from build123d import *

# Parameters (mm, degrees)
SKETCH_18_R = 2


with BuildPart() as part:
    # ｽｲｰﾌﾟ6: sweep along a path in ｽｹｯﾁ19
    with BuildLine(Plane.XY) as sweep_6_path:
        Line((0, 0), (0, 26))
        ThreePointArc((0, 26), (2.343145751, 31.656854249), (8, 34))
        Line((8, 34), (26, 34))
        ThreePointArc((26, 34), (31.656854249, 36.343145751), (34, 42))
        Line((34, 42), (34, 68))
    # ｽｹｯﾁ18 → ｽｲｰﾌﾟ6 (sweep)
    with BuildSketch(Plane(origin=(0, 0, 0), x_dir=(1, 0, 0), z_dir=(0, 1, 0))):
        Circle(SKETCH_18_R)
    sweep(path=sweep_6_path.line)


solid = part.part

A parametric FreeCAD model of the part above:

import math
import FreeCAD as App
import Part
import Sketcher

V = App.Vector

doc = App.newDocument("Part")
params = doc.addObject("Spreadsheet::Sheet", "Params")
for row, (alias, value) in enumerate([
    ("sketch1_diameter", "4 mm"),
    ("sketch2_radius", "8 mm"),
    ("sketch2_width", "18 mm"),
    ("sketch2_height", "26 mm"),
], start=1):
    params.set(f"A{row}", alias)
    params.set(f"B{row}", "=" + value)
    params.setAlias(f"B{row}", alias)

body = doc.addObject("PartDesign::Body", "Body")

# Sketch on XZ plane
sketch1 = body.newObject("Sketcher::SketchObject", "Sketch")
sketch1.AttachmentSupport = (doc.getObject("XZ_Plane"), [""])
sketch1.MapMode = "FlatFace"
sketch1.addGeometry(Part.Circle(V(0, 0, 0), V(0, 0, 1), 2), False)
sketch1.addConstraint(Sketcher.Constraint("Coincident", 0, 3, -1, 1))
sketch1.addConstraint(Sketcher.Constraint("Diameter", 0, 4.0))
sketch1.setExpression("Constraints[1]", "Params.sketch1_diameter")

# Sketch on XY plane
sketch2 = body.newObject("Sketcher::SketchObject", "Sketch001")
sketch2.AttachmentSupport = (doc.getObject("XY_Plane"), [""])
sketch2.MapMode = "FlatFace"
sketch2.addGeometry(Part.LineSegment(V(0, 0, 0), V(0, 26, 0)), False)
sketch2.addGeometry(Part.ArcOfCircle(Part.Circle(V(8, 26, 0), V(0, 0, 1), 8), math.radians(90), math.radians(180)), False)
sketch2.addGeometry(Part.LineSegment(V(8, 34, 0), V(26, 34, 0)), False)
sketch2.addGeometry(Part.ArcOfCircle(Part.Circle(V(26, 42, 0), V(0, 0, 1), 8), math.radians(-90), math.radians(0)), False)
sketch2.addGeometry(Part.LineSegment(V(34, 42, 0), V(34, 68, 0)), False)
sketch2.addConstraint(Sketcher.Constraint("Tangent", 0, 2, 1, 2))
sketch2.addConstraint(Sketcher.Constraint("Tangent", 1, 1, 2, 1))
sketch2.addConstraint(Sketcher.Constraint("Tangent", 2, 2, 3, 1))
sketch2.addConstraint(Sketcher.Constraint("Tangent", 3, 2, 4, 1))
sketch2.addConstraint(Sketcher.Constraint("Vertical", 0))
sketch2.addConstraint(Sketcher.Constraint("Horizontal", 2))
sketch2.addConstraint(Sketcher.Constraint("Vertical", 4))
sketch2.addConstraint(Sketcher.Constraint("Coincident", 0, 1, -1, 1))
sketch2.addConstraint(Sketcher.Constraint("Equal", 1, 3))
sketch2.addConstraint(Sketcher.Constraint("Equal", 0, 4))
sketch2.addConstraint(Sketcher.Constraint("Radius", 1, 8.0))
sketch2.addConstraint(Sketcher.Constraint("DistanceX", 2, 1, 2, 2, 18.0))
sketch2.addConstraint(Sketcher.Constraint("DistanceY", 0, 1, 0, 2, 26.0))
sketch2.setExpression("Constraints[10]", "Params.sketch2_radius")
sketch2.setExpression("Constraints[11]", "Params.sketch2_width")
sketch2.setExpression("Constraints[12]", "Params.sketch2_height")
doc.recompute()

additivepipe = body.newObject("PartDesign::AdditivePipe", "AdditivePipe")
additivepipe.Profile = sketch1
additivepipe.Spine = (sketch2, ["Edge1", "Edge2", "Edge3", "Edge4", "Edge5"])

doc.recompute()
